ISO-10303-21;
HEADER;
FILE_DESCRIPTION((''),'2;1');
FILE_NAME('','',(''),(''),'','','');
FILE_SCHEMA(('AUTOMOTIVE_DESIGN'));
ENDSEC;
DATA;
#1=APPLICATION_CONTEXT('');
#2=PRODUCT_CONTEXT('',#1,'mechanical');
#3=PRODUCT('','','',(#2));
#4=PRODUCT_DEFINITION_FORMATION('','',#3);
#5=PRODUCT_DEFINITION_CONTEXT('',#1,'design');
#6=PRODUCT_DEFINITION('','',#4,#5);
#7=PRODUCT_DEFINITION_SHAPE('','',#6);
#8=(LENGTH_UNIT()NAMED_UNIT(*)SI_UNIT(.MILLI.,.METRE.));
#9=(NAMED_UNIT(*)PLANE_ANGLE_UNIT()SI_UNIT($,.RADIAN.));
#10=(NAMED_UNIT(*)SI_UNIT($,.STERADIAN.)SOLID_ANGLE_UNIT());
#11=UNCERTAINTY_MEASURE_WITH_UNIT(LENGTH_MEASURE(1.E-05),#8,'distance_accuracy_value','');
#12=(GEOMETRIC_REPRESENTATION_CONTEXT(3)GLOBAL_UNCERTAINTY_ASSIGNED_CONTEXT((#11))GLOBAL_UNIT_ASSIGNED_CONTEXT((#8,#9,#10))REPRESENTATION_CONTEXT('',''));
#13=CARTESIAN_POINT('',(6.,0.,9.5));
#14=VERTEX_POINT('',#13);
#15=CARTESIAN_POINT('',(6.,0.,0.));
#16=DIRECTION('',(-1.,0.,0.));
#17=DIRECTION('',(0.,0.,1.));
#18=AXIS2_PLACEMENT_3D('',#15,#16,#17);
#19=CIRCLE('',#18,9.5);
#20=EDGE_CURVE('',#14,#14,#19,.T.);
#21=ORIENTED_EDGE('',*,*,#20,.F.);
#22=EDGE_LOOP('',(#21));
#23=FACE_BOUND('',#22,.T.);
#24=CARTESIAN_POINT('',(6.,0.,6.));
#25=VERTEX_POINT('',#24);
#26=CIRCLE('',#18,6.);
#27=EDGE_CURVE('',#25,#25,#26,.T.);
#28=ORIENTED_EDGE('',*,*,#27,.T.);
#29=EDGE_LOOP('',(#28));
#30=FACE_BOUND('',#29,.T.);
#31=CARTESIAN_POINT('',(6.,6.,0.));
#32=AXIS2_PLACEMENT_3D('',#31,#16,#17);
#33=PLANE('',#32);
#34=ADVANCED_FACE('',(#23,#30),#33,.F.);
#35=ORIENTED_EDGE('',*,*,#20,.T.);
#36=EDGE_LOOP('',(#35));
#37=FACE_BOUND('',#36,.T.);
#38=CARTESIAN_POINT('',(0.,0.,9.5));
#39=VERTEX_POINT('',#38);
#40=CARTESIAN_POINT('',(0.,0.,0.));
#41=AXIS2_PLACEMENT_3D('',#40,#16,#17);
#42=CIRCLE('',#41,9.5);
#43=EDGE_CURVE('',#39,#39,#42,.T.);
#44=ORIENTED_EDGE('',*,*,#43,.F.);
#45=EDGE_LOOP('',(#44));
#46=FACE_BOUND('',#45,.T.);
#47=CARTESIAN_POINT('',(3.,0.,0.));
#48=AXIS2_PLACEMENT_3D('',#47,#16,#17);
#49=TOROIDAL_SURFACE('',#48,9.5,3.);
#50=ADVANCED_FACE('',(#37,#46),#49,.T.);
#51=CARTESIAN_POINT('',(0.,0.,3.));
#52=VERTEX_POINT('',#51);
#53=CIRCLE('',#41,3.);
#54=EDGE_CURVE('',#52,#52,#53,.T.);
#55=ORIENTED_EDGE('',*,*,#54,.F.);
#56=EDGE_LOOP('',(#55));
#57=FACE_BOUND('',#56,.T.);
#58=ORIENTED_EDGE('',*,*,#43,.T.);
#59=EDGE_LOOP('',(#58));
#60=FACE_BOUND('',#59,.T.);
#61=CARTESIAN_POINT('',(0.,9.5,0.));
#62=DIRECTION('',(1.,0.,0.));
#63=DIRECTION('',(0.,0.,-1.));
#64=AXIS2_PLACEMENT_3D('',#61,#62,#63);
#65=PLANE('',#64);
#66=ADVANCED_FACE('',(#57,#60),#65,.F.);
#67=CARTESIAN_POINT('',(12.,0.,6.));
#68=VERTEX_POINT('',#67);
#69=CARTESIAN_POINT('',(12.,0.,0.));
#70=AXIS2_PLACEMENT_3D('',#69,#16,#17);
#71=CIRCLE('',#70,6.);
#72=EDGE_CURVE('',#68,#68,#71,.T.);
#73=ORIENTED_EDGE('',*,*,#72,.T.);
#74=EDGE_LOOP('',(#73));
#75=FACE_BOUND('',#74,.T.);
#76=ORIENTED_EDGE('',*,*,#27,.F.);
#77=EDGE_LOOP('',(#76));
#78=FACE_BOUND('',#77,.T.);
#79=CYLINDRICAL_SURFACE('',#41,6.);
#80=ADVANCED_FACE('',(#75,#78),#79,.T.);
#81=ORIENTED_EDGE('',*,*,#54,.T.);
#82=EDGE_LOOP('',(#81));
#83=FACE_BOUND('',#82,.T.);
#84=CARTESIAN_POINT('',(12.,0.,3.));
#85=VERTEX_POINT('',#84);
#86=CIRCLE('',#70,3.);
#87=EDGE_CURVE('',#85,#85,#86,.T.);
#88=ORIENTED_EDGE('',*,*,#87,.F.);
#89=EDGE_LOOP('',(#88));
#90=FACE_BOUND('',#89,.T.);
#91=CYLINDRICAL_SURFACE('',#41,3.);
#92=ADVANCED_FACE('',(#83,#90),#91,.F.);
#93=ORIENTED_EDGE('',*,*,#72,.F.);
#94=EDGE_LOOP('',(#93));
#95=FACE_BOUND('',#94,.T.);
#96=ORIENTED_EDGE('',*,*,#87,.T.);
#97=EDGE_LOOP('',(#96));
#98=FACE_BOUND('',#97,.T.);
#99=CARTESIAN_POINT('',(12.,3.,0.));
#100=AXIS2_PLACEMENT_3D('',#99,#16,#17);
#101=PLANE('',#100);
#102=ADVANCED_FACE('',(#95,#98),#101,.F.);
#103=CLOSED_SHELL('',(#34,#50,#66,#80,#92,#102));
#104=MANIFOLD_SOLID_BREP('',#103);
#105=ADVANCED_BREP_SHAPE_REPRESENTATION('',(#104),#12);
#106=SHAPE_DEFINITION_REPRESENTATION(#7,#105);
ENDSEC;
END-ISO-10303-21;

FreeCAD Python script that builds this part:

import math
import FreeCAD as App
import Part
import Sketcher

V = App.Vector
Q = App.Units.Quantity

doc = App.newDocument("Part")
body = doc.addObject("PartDesign::Body", "Body")

# Sketch on XY plane
sketch1 = doc.addObject("Sketcher::SketchObject", "Sketch")
body.addObject(sketch1)
sketch1.AttachmentSupport = (doc.XY_Plane, [""])
sketch1.MapMode = "FlatFace"
sketch1.addGeometry([
    Part.LineSegment(V(0, 3, 0), V(12, 3, 0)),  # 0
    Part.LineSegment(V(12, 3, 0), V(12, 6, 0)),  # 1
    Part.LineSegment(V(12, 6, 0), V(6, 6, 0)),  # 2
    Part.LineSegment(V(6, 6, 0), V(6, 9.5, 0)),  # 3
    Part.ArcOfCircle(Part.Circle(V(3, 9.5, 0), V(0, 0, 1), 3), math.radians(0), math.radians(180)),  # 4
    Part.LineSegment(V(0, 9.5, 0), V(0, 3, 0)),  # 5
], False)
sketch1.addConstraint([
    Sketcher.Constraint("Coincident", 0, 2, 1, 1),
    Sketcher.Constraint("Coincident", 1, 2, 2, 1),
    Sketcher.Constraint("Coincident", 2, 2, 3, 1),
    Sketcher.Constraint("Tangent", 3, 2, 4, 1),
    Sketcher.Constraint("Tangent", 4, 2, 5, 1),
    Sketcher.Constraint("Coincident", 5, 2, 0, 1),
    Sketcher.Constraint("Horizontal", 0),
    Sketcher.Constraint("Vertical", 1),
    Sketcher.Constraint("Horizontal", 2),
    Sketcher.Constraint("Vertical", 3),
    Sketcher.Constraint("Vertical", 5),
    Sketcher.Constraint("PointOnObject", 4, 2, -2),
    Sketcher.Constraint("Radius", 4, Q("3 mm")),
    Sketcher.Constraint("DistanceX", 0, 1, 0, 2, Q("12 mm")),
    Sketcher.Constraint("DistanceY", 1, 1, 1, 2, Q("3 mm")),
    Sketcher.Constraint("DistanceY", 3, 1, 3, 2, Q("3.5 mm")),
    Sketcher.Constraint("DistanceY", -1, 1, 0, 2, Q("3 mm")),
])
revolution = doc.addObject("PartDesign::Revolution", "Revolution")
body.addObject(revolution)
revolution.Profile = sketch1
revolution.ReferenceAxis = (sketch1, ["H_Axis"])
revolution.Angle = 360

doc.recompute()
